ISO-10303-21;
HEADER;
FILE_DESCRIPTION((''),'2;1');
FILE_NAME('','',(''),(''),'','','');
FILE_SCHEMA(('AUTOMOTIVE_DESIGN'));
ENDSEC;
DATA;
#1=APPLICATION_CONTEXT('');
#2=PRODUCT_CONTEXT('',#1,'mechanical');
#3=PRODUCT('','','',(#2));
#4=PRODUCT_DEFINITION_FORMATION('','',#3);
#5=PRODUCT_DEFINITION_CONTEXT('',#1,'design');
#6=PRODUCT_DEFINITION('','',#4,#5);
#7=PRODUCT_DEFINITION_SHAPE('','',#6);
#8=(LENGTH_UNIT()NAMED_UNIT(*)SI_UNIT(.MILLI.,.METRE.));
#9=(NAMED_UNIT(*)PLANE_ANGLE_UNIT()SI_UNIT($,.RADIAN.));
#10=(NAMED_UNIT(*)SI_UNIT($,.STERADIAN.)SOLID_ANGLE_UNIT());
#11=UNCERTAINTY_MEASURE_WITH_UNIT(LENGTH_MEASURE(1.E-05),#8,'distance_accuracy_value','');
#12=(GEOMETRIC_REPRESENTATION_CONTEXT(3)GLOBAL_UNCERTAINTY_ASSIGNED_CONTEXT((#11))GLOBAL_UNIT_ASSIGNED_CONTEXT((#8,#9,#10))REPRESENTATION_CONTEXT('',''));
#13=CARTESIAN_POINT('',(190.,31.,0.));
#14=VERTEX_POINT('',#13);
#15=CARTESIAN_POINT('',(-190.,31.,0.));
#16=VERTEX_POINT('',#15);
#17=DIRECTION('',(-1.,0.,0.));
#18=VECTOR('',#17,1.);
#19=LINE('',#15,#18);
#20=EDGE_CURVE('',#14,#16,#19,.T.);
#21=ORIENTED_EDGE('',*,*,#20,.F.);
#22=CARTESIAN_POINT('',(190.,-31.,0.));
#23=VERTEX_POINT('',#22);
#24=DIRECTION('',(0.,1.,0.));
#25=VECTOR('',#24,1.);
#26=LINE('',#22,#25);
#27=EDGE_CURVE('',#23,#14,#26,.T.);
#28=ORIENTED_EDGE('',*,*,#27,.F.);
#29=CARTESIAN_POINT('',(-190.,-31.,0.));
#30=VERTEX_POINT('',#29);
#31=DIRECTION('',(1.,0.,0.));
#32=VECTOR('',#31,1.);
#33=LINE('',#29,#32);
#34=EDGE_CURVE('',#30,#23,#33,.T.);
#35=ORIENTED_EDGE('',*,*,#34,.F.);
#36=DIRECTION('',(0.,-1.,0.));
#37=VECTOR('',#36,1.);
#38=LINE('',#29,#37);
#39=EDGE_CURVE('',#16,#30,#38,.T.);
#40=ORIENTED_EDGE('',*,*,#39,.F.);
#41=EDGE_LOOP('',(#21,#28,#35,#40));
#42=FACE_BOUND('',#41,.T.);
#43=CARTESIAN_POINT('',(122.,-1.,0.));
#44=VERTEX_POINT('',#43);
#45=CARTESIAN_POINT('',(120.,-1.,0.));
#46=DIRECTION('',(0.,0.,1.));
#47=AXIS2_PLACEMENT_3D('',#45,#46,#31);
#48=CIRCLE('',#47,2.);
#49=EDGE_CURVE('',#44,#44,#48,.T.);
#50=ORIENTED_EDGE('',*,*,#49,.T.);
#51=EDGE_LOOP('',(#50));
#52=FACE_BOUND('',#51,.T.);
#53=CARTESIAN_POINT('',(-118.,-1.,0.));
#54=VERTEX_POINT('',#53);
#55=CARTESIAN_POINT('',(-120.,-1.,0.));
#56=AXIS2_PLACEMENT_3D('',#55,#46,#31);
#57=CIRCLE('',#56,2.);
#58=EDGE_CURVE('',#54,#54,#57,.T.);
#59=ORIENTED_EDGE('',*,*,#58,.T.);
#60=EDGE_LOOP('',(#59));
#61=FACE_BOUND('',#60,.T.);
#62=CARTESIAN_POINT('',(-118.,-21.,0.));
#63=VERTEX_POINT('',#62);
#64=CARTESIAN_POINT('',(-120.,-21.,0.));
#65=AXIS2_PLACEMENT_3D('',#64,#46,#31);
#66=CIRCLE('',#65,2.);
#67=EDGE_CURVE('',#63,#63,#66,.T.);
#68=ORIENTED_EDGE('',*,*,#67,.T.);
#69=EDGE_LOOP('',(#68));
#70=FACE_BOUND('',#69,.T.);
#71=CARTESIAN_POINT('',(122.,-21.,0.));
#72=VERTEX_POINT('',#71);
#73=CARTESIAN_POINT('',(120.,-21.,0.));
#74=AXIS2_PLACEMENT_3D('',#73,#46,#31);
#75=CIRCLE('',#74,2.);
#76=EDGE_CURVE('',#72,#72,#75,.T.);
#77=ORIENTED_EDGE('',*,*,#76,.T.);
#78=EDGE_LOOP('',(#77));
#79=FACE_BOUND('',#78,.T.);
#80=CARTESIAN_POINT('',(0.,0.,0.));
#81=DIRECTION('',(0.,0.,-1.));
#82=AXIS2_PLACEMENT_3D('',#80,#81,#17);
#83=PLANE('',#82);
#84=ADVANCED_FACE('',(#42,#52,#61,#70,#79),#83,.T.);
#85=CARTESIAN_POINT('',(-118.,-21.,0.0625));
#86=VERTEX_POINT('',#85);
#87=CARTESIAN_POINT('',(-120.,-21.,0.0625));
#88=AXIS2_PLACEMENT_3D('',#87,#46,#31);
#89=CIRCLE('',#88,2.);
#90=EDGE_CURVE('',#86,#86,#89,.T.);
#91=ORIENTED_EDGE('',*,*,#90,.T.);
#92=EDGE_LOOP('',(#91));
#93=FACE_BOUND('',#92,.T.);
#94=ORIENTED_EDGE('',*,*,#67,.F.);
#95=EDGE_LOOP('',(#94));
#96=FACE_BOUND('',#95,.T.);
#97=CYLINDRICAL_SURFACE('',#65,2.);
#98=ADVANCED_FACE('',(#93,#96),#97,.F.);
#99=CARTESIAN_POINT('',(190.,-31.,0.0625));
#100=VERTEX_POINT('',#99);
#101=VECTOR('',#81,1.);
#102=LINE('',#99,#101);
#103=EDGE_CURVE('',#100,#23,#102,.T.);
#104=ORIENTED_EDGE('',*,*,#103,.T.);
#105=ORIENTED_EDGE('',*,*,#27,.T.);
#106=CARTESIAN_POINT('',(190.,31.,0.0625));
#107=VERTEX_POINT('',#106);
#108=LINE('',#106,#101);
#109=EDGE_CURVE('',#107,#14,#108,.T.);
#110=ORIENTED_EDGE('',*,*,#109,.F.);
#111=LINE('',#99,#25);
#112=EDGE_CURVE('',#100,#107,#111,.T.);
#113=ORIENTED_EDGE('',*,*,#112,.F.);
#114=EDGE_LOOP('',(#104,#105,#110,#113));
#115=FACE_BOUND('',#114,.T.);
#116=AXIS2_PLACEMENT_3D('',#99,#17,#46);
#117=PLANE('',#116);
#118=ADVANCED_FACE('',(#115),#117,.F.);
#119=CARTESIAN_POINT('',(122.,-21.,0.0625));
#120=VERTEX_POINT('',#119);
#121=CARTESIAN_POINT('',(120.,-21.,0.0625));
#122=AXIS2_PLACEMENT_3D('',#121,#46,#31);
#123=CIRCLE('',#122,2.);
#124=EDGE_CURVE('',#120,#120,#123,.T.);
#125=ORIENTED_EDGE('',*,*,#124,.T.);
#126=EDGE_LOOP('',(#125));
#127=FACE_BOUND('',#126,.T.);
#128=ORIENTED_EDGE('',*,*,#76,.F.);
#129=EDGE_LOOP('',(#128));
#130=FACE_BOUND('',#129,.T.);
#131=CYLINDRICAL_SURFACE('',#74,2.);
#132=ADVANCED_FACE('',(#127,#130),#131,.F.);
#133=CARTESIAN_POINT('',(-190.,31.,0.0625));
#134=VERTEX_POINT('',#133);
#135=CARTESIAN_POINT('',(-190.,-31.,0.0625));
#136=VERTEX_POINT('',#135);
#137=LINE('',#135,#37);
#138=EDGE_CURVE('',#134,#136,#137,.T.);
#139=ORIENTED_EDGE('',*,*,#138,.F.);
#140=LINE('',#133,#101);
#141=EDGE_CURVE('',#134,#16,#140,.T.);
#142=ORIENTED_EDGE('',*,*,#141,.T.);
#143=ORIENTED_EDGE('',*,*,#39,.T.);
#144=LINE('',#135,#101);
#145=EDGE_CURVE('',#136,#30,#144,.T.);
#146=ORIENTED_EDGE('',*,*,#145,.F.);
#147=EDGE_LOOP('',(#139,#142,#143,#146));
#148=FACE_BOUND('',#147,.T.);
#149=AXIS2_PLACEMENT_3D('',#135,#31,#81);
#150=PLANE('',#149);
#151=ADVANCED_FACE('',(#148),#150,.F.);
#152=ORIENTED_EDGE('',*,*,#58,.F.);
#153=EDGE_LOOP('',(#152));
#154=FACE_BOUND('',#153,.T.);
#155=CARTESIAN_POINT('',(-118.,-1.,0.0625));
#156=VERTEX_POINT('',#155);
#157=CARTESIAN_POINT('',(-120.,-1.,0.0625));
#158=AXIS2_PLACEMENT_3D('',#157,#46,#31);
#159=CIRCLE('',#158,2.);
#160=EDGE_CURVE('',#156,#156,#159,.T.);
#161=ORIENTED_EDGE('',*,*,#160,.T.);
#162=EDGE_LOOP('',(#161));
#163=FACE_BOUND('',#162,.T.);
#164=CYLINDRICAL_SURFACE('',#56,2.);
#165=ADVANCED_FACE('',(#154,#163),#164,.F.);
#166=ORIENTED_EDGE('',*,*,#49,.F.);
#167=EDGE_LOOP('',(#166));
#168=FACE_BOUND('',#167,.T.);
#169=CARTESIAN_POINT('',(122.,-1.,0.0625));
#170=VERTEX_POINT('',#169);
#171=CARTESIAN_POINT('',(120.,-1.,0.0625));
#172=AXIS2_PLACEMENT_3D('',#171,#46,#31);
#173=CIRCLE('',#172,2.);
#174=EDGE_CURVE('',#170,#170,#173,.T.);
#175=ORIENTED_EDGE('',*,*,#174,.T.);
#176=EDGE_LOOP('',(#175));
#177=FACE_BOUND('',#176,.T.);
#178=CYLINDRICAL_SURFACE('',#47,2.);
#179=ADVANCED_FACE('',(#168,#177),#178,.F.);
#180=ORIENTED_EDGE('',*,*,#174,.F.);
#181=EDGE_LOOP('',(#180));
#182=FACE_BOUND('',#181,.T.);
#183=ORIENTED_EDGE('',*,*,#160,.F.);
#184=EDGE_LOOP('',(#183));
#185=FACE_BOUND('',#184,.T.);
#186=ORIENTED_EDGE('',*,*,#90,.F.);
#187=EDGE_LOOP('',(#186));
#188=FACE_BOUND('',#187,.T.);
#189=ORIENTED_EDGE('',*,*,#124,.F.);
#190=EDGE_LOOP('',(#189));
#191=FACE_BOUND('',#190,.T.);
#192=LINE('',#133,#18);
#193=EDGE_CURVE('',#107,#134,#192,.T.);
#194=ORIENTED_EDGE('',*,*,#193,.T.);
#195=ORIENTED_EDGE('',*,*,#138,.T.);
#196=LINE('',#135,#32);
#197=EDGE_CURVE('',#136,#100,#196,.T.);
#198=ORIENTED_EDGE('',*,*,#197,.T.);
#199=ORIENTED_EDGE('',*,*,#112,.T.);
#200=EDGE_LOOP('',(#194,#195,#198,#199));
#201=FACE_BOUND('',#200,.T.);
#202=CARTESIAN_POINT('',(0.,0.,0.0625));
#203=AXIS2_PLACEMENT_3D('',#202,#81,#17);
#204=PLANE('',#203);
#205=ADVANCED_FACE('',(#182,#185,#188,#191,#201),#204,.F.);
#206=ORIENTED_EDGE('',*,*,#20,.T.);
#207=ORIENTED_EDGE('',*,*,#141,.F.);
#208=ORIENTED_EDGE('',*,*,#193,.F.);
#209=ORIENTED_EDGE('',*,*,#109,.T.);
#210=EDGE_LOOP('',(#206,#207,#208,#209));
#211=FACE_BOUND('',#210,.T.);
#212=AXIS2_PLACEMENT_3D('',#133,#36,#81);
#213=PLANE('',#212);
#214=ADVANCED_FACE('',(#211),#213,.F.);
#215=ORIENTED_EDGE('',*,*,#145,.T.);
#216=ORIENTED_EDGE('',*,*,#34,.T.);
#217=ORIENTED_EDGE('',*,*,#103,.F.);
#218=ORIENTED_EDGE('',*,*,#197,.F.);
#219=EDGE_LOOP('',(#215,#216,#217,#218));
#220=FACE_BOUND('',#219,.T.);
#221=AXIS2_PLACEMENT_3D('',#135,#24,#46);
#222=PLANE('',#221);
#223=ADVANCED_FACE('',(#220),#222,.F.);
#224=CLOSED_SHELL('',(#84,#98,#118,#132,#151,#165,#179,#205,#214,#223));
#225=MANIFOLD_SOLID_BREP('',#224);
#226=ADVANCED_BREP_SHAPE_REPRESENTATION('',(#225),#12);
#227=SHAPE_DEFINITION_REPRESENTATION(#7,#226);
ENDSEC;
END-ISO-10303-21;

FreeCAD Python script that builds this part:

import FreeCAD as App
import Part
import Sketcher

V = App.Vector

doc = App.newDocument("Part")
body = doc.addObject("PartDesign::Body", "Body")

sketch1 = body.newObject("Sketcher::SketchObject", "Sketch")
sketch1.AttachmentSupport = (doc.getObject("XY_Plane"), [""])
sketch1.MapMode = "FlatFace"
sketch1.addGeometry(Part.LineSegment(V(-190, 31, 0), V(-190, -31, 0)), False)
sketch1.addGeometry(Part.LineSegment(V(-190, -31, 0), V(190, -31, 0)), False)
sketch1.addGeometry(Part.LineSegment(V(190, -31, 0), V(190, 31, 0)), False)
sketch1.addGeometry(Part.LineSegment(V(190, 31, 0), V(-190, 31, 0)), False)
sketch1.addConstraint(Sketcher.Constraint("Coincident", 0, 2, 1, 1))
sketch1.addConstraint(Sketcher.Constraint("Coincident", 1, 2, 2, 1))
sketch1.addConstraint(Sketcher.Constraint("Coincident", 2, 2, 3, 1))
sketch1.addConstraint(Sketcher.Constraint("Coincident", 3, 2, 0, 1))
sketch1.addConstraint(Sketcher.Constraint("Vertical", 0))
sketch1.addConstraint(Sketcher.Constraint("Horizontal", 1))
sketch1.addConstraint(Sketcher.Constraint("Vertical", 2))
sketch1.addConstraint(Sketcher.Constraint("Horizontal", 3))
sketch1.addConstraint(Sketcher.Constraint("Symmetric", 0, 2, 2, 2, -1, 1))
sketch1.addConstraint(Sketcher.Constraint("DistanceX", 1, 1, 1, 2, 380.0))
sketch1.addConstraint(Sketcher.Constraint("DistanceY", 0, 2, 0, 1, 62.0))
pad1 = body.newObject("PartDesign::Pad", "Pad")
pad1.Profile = sketch1
pad1.Length = 0.0625

sketch2 = body.newObject("Sketcher::SketchObject", "Sketch001")
sketch2.AttachmentSupport = (doc.getObject("XY_Plane"), [""])
sketch2.MapMode = "FlatFace"
sketch2.AttachmentOffset = App.Placement(V(0, 0, 0.0625), App.Rotation())
sketch2.addGeometry(Part.Circle(V(-120, -1, 0), V(0, 0, 1), 2), False)
sketch2.addGeometry(Part.Circle(V(120, -1, 0), V(0, 0, 1), 2), False)
sketch2.addGeometry(Part.Circle(V(120, -21, 0), V(0, 0, 1), 2), False)
sketch2.addGeometry(Part.Circle(V(-120, -21, 0), V(0, 0, 1), 2), False)
sketch2.addConstraint(Sketcher.Constraint("Equal", 0, 1))
sketch2.addConstraint(Sketcher.Constraint("Equal", 1, 2))
sketch2.addConstraint(Sketcher.Constraint("Equal", 2, 3))
sketch2.addConstraint(Sketcher.Constraint("Symmetric", 0, 3, 1, 3, -2))
sketch2.addConstraint(Sketcher.Constraint("Symmetric", 2, 3, 3, 3, -2))
sketch2.addConstraint(Sketcher.Constraint("Vertical", 1, 3, 2, 3))
sketch2.addConstraint(Sketcher.Constraint("Diameter", 0, 4.0))
sketch2.addConstraint(Sketcher.Constraint("DistanceX", 0, 3, -1, 1, 120.0))
sketch2.addConstraint(Sketcher.Constraint("DistanceY", 0, 3, -1, 1, 1.0))
sketch2.addConstraint(Sketcher.Constraint("DistanceY", 2, 3, -1, 1, 21.0))
pocket1 = body.newObject("PartDesign::Pocket", "Pocket")
pocket1.Profile = sketch2
pocket1.Length = 0.0625

doc.recompute()
